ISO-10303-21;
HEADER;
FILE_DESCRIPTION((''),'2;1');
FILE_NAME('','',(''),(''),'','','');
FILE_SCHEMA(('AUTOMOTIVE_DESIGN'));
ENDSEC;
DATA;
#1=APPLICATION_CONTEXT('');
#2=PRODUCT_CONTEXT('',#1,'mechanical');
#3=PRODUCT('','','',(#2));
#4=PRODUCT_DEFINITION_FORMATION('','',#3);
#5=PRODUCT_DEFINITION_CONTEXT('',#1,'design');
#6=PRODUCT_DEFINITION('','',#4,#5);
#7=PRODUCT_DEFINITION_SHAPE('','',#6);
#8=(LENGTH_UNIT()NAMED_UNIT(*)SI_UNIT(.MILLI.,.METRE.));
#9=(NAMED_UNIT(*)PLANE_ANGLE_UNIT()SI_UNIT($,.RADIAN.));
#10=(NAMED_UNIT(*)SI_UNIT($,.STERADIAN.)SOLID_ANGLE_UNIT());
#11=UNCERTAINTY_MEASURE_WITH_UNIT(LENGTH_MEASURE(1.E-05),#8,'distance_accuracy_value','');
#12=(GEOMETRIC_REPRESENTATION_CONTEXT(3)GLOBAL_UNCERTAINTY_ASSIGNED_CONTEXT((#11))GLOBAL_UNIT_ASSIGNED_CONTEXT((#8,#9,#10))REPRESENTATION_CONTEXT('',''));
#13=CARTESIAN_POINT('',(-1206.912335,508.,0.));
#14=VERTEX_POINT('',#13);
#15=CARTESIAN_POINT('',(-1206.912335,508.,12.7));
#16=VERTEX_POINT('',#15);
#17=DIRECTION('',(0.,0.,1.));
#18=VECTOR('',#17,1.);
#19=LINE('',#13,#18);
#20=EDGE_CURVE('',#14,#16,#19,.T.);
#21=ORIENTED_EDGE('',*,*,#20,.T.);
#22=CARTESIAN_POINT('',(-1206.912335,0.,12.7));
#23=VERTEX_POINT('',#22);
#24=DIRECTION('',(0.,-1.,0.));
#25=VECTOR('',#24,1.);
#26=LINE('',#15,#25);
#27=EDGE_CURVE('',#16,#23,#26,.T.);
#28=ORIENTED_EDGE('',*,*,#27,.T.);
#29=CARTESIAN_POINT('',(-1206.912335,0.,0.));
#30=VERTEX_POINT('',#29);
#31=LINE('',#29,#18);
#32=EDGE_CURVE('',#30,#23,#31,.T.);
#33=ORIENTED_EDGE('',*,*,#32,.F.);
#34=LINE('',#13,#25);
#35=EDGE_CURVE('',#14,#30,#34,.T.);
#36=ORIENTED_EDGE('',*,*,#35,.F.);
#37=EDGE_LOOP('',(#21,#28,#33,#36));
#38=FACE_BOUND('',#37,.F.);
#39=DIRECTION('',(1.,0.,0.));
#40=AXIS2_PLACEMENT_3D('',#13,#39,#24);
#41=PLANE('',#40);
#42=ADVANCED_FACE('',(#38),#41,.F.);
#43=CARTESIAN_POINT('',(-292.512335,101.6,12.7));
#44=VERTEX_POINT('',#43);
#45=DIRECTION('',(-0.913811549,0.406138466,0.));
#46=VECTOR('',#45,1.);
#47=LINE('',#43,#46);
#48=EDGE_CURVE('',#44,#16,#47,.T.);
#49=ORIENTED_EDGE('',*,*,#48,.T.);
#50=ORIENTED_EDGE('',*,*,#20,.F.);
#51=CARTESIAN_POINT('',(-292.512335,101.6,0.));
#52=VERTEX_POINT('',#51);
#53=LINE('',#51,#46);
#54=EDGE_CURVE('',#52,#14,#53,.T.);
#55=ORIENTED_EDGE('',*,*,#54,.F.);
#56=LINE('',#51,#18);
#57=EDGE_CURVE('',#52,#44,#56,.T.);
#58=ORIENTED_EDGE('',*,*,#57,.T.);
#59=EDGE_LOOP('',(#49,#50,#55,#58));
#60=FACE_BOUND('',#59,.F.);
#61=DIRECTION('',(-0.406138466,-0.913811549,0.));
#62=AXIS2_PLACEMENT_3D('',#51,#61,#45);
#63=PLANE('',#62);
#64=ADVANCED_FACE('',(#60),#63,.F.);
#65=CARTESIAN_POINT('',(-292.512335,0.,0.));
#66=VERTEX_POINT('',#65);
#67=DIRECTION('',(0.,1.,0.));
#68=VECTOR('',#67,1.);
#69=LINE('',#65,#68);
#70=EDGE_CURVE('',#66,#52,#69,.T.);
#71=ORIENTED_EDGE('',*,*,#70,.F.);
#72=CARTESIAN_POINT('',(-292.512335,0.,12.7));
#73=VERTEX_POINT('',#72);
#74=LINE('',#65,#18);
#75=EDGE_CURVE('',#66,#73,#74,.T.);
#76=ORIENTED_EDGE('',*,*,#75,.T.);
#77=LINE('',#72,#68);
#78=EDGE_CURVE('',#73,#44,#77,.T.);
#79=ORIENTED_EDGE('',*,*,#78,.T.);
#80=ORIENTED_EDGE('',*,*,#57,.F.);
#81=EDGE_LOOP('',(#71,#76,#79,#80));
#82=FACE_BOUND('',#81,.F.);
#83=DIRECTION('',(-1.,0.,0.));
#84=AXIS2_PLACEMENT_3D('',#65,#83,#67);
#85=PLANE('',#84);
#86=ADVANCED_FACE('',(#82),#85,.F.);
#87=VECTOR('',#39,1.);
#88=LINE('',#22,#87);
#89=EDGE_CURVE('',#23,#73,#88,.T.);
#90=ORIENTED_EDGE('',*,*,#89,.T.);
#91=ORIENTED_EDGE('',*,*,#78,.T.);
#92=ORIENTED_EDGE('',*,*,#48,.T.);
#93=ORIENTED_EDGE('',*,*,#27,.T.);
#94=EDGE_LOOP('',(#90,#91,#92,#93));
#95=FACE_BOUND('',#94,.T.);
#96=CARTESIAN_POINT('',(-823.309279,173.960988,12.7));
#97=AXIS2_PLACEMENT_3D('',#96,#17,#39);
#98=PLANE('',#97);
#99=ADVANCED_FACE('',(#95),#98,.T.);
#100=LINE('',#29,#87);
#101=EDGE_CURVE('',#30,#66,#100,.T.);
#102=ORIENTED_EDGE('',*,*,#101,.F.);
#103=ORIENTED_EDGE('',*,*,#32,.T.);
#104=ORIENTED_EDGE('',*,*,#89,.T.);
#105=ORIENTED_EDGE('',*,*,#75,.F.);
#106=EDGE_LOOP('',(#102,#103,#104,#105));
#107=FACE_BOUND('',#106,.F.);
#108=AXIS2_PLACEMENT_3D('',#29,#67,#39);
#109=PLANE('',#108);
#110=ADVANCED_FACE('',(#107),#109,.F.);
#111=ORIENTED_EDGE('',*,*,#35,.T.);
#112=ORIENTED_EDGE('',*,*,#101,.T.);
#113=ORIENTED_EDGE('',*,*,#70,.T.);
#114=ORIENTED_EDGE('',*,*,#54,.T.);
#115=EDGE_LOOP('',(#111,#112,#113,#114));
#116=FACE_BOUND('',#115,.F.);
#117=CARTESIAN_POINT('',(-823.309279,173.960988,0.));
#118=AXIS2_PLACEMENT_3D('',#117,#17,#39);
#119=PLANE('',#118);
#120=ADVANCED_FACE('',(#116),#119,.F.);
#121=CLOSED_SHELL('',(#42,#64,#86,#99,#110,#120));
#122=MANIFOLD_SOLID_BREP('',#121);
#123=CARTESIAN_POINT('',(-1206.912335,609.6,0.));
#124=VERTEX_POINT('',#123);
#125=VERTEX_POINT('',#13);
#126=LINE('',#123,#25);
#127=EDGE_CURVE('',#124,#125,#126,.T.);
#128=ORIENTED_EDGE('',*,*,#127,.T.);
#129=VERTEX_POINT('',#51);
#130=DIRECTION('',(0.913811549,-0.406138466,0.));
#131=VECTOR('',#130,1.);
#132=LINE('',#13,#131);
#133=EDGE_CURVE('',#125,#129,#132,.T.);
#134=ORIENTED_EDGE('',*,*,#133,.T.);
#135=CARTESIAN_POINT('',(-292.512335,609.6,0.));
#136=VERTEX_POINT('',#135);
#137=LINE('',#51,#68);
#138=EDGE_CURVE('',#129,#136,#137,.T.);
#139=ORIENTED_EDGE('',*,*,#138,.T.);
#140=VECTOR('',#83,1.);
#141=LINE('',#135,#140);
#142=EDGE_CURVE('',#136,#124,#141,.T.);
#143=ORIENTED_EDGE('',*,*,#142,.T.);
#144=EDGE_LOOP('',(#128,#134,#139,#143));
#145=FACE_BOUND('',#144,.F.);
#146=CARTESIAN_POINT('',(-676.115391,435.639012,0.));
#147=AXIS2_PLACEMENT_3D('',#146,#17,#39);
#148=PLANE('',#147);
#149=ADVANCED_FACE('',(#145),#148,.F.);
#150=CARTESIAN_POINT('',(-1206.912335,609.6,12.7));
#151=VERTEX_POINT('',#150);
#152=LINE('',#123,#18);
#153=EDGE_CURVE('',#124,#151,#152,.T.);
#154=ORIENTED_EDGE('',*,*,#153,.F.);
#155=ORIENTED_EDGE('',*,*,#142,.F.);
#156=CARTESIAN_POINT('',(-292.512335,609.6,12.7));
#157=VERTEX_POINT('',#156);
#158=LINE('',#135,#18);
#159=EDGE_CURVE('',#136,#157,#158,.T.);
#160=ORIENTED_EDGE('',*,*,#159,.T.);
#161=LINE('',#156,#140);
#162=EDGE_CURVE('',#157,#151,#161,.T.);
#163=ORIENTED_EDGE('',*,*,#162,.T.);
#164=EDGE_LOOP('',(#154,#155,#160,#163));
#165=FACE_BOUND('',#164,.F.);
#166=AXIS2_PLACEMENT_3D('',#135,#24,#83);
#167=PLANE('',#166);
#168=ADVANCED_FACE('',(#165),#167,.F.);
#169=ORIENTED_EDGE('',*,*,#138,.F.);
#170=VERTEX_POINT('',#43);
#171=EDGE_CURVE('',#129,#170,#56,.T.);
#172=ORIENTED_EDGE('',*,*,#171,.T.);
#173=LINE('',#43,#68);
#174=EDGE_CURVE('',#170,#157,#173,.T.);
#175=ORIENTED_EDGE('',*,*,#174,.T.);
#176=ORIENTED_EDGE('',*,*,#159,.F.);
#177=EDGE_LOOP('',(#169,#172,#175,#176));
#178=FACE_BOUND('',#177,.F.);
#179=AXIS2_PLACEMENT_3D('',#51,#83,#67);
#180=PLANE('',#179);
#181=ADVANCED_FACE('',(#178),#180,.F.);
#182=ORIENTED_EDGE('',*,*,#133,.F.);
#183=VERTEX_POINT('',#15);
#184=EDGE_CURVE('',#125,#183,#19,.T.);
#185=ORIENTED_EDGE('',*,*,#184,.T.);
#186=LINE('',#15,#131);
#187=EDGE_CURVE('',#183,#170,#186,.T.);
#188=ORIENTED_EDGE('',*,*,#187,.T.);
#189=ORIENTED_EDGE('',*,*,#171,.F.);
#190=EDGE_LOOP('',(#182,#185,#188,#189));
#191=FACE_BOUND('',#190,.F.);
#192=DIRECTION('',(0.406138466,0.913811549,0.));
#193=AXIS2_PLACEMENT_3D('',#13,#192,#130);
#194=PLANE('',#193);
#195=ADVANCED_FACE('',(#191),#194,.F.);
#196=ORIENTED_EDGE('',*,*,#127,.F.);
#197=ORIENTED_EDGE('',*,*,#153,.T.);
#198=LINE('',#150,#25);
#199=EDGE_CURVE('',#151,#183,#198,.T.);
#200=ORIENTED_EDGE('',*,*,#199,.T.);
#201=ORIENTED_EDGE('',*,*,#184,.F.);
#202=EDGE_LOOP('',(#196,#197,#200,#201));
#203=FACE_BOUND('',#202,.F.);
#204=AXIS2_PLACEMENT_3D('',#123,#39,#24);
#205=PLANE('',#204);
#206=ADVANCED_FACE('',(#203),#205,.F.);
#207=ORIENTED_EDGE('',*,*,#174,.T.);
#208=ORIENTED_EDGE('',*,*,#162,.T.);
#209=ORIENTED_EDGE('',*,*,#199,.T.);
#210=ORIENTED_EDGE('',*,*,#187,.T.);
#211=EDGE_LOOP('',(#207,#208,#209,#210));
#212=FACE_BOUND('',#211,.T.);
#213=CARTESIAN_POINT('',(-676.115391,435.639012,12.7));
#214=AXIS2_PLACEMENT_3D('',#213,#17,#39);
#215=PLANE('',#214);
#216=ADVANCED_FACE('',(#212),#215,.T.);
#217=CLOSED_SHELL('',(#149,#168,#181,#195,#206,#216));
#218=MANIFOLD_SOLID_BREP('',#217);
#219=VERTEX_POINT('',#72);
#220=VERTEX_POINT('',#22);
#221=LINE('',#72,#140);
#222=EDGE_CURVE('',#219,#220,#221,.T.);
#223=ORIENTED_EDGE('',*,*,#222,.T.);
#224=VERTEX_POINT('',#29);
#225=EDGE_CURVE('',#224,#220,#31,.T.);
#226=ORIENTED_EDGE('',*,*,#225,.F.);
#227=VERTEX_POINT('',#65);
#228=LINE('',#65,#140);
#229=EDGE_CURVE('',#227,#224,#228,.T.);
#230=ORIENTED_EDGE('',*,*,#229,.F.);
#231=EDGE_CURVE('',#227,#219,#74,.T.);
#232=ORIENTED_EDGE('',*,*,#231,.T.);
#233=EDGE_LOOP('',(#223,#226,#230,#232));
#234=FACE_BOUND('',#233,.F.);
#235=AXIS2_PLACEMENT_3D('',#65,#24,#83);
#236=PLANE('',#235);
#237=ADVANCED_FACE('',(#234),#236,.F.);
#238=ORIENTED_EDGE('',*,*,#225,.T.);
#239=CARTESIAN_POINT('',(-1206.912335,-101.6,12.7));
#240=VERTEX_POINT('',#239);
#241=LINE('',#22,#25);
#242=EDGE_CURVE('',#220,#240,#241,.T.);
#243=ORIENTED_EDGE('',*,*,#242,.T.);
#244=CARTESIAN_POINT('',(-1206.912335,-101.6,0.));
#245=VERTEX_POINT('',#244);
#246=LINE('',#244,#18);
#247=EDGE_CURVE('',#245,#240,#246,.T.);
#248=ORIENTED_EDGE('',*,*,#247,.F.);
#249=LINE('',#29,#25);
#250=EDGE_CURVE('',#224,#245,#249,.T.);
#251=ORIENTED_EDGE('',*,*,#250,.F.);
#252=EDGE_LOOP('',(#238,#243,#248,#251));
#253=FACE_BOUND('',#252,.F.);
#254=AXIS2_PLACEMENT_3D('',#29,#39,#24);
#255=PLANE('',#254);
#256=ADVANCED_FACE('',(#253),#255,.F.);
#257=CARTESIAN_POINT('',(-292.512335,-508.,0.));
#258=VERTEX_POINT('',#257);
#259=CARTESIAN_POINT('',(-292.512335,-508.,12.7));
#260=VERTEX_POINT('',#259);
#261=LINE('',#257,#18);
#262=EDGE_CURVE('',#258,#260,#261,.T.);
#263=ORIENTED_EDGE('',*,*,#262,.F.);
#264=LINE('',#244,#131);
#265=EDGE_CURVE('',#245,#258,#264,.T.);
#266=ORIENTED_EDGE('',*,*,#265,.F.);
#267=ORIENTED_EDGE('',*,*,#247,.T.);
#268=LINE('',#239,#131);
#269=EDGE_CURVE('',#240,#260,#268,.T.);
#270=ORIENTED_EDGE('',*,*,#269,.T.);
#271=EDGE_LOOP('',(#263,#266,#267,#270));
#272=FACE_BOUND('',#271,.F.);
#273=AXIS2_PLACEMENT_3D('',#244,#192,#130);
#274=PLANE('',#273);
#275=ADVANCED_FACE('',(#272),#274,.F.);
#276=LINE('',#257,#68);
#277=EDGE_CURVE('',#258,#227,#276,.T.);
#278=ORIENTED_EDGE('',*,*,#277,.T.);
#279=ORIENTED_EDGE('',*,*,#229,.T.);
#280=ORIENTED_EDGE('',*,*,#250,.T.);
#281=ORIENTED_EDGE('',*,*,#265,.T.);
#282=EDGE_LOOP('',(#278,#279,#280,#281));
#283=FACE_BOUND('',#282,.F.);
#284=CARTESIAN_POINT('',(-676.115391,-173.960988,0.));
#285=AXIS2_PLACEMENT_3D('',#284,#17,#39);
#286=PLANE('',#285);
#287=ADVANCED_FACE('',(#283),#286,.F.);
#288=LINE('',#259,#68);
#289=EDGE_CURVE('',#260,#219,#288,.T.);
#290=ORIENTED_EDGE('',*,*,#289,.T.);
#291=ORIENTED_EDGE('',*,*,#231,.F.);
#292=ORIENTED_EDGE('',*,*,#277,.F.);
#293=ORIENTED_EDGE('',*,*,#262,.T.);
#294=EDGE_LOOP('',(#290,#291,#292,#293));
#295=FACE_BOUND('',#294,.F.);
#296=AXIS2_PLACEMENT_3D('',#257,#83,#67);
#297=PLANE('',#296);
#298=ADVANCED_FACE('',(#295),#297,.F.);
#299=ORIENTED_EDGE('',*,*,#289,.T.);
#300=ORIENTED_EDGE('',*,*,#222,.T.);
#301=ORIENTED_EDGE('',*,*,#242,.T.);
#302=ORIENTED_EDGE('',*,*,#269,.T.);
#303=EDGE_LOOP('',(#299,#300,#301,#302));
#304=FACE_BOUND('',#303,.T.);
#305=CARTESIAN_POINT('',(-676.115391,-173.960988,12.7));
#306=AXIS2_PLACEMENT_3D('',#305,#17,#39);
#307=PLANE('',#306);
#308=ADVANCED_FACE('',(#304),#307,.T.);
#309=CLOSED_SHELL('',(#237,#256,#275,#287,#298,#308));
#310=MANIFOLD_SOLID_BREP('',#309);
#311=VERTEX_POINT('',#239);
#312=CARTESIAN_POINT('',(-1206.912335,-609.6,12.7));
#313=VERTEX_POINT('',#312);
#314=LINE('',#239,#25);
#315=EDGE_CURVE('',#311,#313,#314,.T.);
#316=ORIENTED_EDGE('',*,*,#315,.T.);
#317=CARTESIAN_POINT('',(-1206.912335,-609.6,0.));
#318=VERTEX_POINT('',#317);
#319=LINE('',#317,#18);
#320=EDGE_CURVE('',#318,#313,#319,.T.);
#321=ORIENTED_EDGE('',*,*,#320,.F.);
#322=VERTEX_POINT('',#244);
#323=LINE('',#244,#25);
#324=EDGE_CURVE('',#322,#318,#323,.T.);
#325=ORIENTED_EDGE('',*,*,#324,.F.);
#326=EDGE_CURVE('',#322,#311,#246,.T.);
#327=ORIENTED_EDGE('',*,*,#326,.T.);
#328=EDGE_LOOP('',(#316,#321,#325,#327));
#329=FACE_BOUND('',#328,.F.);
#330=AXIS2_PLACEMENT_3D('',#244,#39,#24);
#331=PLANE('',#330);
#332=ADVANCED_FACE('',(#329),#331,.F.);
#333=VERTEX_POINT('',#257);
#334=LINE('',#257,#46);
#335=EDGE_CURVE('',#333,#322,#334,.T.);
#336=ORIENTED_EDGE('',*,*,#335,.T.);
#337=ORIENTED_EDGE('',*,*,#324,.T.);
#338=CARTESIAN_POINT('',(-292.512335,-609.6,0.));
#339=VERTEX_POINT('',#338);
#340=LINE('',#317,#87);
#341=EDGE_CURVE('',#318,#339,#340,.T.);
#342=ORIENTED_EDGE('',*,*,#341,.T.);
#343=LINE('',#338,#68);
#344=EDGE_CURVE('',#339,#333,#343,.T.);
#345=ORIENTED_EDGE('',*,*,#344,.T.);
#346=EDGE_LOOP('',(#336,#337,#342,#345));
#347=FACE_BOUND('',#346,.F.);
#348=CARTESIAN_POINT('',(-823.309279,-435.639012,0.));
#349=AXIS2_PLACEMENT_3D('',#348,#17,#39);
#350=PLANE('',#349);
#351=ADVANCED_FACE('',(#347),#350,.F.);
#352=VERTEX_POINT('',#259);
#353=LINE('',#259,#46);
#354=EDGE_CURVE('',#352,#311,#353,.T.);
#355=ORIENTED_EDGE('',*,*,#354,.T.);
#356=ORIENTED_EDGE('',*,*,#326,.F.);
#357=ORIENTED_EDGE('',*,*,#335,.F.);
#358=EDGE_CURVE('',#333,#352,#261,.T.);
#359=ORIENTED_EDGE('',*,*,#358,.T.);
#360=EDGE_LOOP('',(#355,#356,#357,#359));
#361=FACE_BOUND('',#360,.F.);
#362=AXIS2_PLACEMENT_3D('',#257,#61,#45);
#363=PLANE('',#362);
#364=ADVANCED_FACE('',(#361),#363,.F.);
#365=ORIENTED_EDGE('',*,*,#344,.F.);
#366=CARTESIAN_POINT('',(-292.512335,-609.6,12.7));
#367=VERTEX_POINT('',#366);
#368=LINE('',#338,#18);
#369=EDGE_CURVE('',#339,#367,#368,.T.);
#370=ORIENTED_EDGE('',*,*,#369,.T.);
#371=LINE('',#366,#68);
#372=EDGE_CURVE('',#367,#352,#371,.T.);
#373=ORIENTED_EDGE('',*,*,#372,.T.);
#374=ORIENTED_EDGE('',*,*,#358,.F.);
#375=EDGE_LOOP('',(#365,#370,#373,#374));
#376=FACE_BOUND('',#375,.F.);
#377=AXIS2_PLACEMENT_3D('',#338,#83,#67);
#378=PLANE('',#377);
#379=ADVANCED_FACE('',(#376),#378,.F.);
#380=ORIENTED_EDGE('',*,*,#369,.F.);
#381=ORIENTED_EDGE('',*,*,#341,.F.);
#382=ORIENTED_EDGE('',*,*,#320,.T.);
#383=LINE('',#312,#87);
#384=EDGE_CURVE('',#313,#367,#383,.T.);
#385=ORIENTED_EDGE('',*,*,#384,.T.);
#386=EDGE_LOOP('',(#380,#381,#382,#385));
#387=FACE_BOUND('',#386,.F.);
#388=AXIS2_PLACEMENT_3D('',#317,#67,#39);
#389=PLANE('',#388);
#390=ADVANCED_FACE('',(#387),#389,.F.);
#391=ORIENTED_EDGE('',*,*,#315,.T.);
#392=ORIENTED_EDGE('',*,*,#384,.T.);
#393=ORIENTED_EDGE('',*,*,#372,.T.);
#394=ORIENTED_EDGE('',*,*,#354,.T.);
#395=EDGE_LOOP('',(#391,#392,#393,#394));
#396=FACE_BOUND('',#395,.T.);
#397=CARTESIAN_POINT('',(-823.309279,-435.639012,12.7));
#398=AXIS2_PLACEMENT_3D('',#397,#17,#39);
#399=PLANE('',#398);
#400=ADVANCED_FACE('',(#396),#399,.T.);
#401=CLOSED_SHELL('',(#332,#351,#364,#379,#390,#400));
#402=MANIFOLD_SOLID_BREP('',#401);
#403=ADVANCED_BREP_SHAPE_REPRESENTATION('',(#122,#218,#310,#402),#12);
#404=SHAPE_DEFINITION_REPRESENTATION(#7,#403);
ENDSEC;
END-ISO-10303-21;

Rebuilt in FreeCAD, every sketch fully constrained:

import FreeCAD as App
import Part
import Sketcher
from FreeCAD import Vector
Q = App.Units.Quantity

doc = App.newDocument("Part")
body = doc.addObject("PartDesign::Body", "Body")

# Sketch on XY plane
sketch1 = doc.addObject("Sketcher::SketchObject", "Sketch")
body.addObject(sketch1)
sketch1.AttachmentSupport = (doc.XY_Plane, [""])
sketch1.MapMode = "FlatFace"
sketch1.addGeometry([
    Part.LineSegment(Vector(-293, 610, 0), Vector(-1207, 610, 0)),
    Part.LineSegment(Vector(-1207, 610, 0), Vector(-1207, 508, 0)),
    Part.LineSegment(Vector(-1207, 508, 0), Vector(-293, 102, 0)),
    Part.LineSegment(Vector(-293, 102, 0), Vector(-293, 610, 0)),
], False)
sketch1.addConstraint([
    Sketcher.Constraint("Coincident", 0, 2, 1, 1),
    Sketcher.Constraint("Coincident", 1, 2, 2, 1),
    Sketcher.Constraint("Coincident", 2, 2, 3, 1),
    Sketcher.Constraint("Coincident", 3, 2, 0, 1),
    Sketcher.Constraint("Horizontal", 0),
    Sketcher.Constraint("Vertical", 1),
    Sketcher.Constraint("Vertical", 3),
    Sketcher.Constraint("DistanceX", 0, 2, 0, 1, Q("36 in")),
    Sketcher.Constraint("DistanceY", 1, 2, 1, 1, Q("4 in")),
    Sketcher.Constraint("DistanceY", 3, 1, 3, 2, Q("20 in")),
    Sketcher.Constraint("DistanceY", -1, 1, 0, 2, Q("24 in")),
    Sketcher.Constraint("DistanceX", 0, 2, -1, 1, 1206.912335),
])
pad1 = doc.addObject("PartDesign::Pad", "Pad")
body.addObject(pad1)
pad1.Profile = sketch1
pad1.Length = Q("0.5 in")
body2 = doc.addObject("PartDesign::Body", "Body001")

# Sketch on XY plane
sketch2 = doc.addObject("Sketcher::SketchObject", "Sketch001")
body2.addObject(sketch2)
sketch2.AttachmentSupport = (doc.getObject("XY_Plane001"), [""])
sketch2.MapMode = "FlatFace"
sketch2.addGeometry([
    Part.LineSegment(Vector(-293, 102, 0), Vector(-1207, 508, 0)),
    Part.LineSegment(Vector(-1207, 508, 0), Vector(-1207, 0, 0)),
    Part.LineSegment(Vector(-1207, 0, 0), Vector(-293, 0, 0)),
    Part.LineSegment(Vector(-293, 0, 0), Vector(-293, 102, 0)),
], False)
sketch2.addConstraint([
    Sketcher.Constraint("Coincident", 0, 2, 1, 1),
    Sketcher.Constraint("Coincident", 1, 2, 2, 1),
    Sketcher.Constraint("Coincident", 2, 2, 3, 1),
    Sketcher.Constraint("Coincident", 3, 2, 0, 1),
    Sketcher.Constraint("Vertical", 1),
    Sketcher.Constraint("Horizontal", 2),
    Sketcher.Constraint("Vertical", 3),
    Sketcher.Constraint("PointOnObject", 1, 2, -1),
    Sketcher.Constraint("DistanceX", 2, 1, 2, 2, Q("36 in")),
    Sketcher.Constraint("DistanceY", 1, 2, 1, 1, Q("20 in")),
    Sketcher.Constraint("DistanceY", 3, 1, 3, 2, Q("4 in")),
    Sketcher.Constraint("DistanceX", 0, 2, -1, 1, 1206.912335),
])
pad2 = doc.addObject("PartDesign::Pad", "Pad001")
body2.addObject(pad2)
pad2.Profile = sketch2
pad2.Length = Q("0.5 in")
body3 = doc.addObject("PartDesign::Body", "Body002")

# Sketch on XY plane
sketch3 = doc.addObject("Sketcher::SketchObject", "Sketch002")
body3.addObject(sketch3)
sketch3.AttachmentSupport = (doc.getObject("XY_Plane002"), [""])
sketch3.MapMode = "FlatFace"
sketch3.addGeometry([
    Part.LineSegment(Vector(-293, 0, 0), Vector(-1207, 0, 0)),
    Part.LineSegment(Vector(-1207, 0, 0), Vector(-1207, -102, 0)),
    Part.LineSegment(Vector(-1207, -102, 0), Vector(-293, -508, 0)),
    Part.LineSegment(Vector(-293, -508, 0), Vector(-293, 0, 0)),
], False)
sketch3.addConstraint([
    Sketcher.Constraint("Coincident", 0, 2, 1, 1),
    Sketcher.Constraint("Coincident", 1, 2, 2, 1),
    Sketcher.Constraint("Coincident", 2, 2, 3, 1),
    Sketcher.Constraint("Coincident", 3, 2, 0, 1),
    Sketcher.Constraint("Horizontal", 0),
    Sketcher.Constraint("Vertical", 1),
    Sketcher.Constraint("Vertical", 3),
    Sketcher.Constraint("PointOnObject", 0, 2, -1),
    Sketcher.Constraint("DistanceX", 0, 2, 0, 1, Q("36 in")),
    Sketcher.Constraint("DistanceY", 1, 2, 1, 1, Q("4 in")),
    Sketcher.Constraint("DistanceY", 3, 1, 3, 2, Q("20 in")),
    Sketcher.Constraint("DistanceX", 0, 2, -1, 1, 1206.912335),
])
pad3 = doc.addObject("PartDesign::Pad", "Pad002")
body3.addObject(pad3)
pad3.Profile = sketch3
pad3.Length = Q("0.5 in")
body4 = doc.addObject("PartDesign::Body", "Body003")

# Sketch on XY plane
sketch4 = doc.addObject("Sketcher::SketchObject", "Sketch003")
body4.addObject(sketch4)
sketch4.AttachmentSupport = (doc.getObject("XY_Plane003"), [""])
sketch4.MapMode = "FlatFace"
sketch4.addGeometry([
    Part.LineSegment(Vector(-293, -508, 0), Vector(-1207, -102, 0)),
    Part.LineSegment(Vector(-1207, -102, 0), Vector(-1207, -610, 0)),
    Part.LineSegment(Vector(-1207, -610, 0), Vector(-293, -610, 0)),
    Part.LineSegment(Vector(-293, -610, 0), Vector(-293, -508, 0)),
], False)
sketch4.addConstraint([
    Sketcher.Constraint("Coincident", 0, 2, 1, 1),
    Sketcher.Constraint("Coincident", 1, 2, 2, 1),
    Sketcher.Constraint("Coincident", 2, 2, 3, 1),
    Sketcher.Constraint("Coincident", 3, 2, 0, 1),
    Sketcher.Constraint("Vertical", 1),
    Sketcher.Constraint("Horizontal", 2),
    Sketcher.Constraint("Vertical", 3),
    Sketcher.Constraint("DistanceX", 2, 1, 2, 2, Q("36 in")),
    Sketcher.Constraint("DistanceY", 1, 2, 1, 1, Q("20 in")),
    Sketcher.Constraint("DistanceY", 3, 1, 3, 2, Q("4 in")),
    Sketcher.Constraint("DistanceY", 0, 2, -1, 1, Q("4 in")),
    Sketcher.Constraint("DistanceX", 0, 2, -1, 1, 1206.912335),
])
pad4 = doc.addObject("PartDesign::Pad", "Pad003")
body4.addObject(pad4)
pad4.Profile = sketch4
pad4.Length = Q("0.5 in")

doc.recompute()
